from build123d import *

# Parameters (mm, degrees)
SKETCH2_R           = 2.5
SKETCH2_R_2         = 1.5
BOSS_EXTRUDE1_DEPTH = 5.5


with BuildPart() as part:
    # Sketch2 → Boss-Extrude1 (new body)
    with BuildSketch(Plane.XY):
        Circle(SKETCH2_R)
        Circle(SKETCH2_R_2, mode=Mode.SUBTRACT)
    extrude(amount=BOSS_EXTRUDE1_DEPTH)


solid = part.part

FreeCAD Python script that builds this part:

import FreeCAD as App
import Part
import Sketcher

V = App.Vector
Q = App.Units.Quantity

doc = App.newDocument("Part")
body = doc.addObject("PartDesign::Body", "Body")

# Sketch on XY plane
sketch1 = body.newObject("Sketcher::SketchObject", "Sketch")
sketch1.AttachmentSupport = (doc.getObject("XY_Plane"), [""])
sketch1.MapMode = "FlatFace"
sketch1.addGeometry([
    Part.Circle(V(0, 0, 0), V(0, 0, 1), 2.5),
    Part.Circle(V(0, 0, 0), V(0, 0, 1), 1.5),
], False)
sketch1.addConstraint([
    Sketcher.Constraint("Coincident", 0, 3, -1, 1),
    Sketcher.Constraint("Coincident", 1, 3, -1, 1),
    Sketcher.Constraint("Diameter", 0, Q("5 mm")),
    Sketcher.Constraint("Diameter", 1, Q("3 mm")),
])
pad1 = body.newObject("PartDesign::Pad", "Pad")
pad1.Profile = sketch1
pad1.Length = 5.5

doc.recompute()
